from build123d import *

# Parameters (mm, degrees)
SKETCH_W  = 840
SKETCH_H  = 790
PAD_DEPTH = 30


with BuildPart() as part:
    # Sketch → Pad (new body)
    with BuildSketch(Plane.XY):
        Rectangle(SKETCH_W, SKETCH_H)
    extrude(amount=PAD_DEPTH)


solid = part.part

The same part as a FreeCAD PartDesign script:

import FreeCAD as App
import Part
import Sketcher


def add_polygon(sketch, points):
    """Adds a closed chain of lines whose ends are joined by coincident constraints."""
    first, n = sketch.GeometryCount, len(points)
    for a, b in zip(points, points[1:] + points[:1]):
        sketch.addGeometry(Part.LineSegment(App.Vector(*a, 0), App.Vector(*b, 0)), False)
    for i in range(n):
        sketch.addConstraint(Sketcher.Constraint("Coincident", first + i, 2, first + (i + 1) % n, 1))

doc = App.newDocument("Part")
body = doc.addObject("PartDesign::Body", "Body")

sketch1 = body.newObject("Sketcher::SketchObject", "Sketch")
sketch1.AttachmentSupport = (doc.getObject("XY_Plane"), [""])
sketch1.MapMode = "FlatFace"
add_polygon(sketch1, [(-420, 395), (-420, -395), (420, -395), (420, 395)])
sketch1.addConstraint([
    Sketcher.Constraint("Vertical", 0),
    Sketcher.Constraint("Horizontal", 1),
    Sketcher.Constraint("Vertical", 2),
    Sketcher.Constraint("Horizontal", 3),
    Sketcher.Constraint("Symmetric", 0, 2, 2, 2, -1, 1),
    Sketcher.Constraint("DistanceX", 1, 1, 1, 2, 840.0),
    Sketcher.Constraint("DistanceY", 0, 2, 0, 1, 790.0),
])
pad1 = body.newObject("PartDesign::Pad", "Pad")
pad1.Profile = sketch1
pad1.Length = 30

doc.recompute()
